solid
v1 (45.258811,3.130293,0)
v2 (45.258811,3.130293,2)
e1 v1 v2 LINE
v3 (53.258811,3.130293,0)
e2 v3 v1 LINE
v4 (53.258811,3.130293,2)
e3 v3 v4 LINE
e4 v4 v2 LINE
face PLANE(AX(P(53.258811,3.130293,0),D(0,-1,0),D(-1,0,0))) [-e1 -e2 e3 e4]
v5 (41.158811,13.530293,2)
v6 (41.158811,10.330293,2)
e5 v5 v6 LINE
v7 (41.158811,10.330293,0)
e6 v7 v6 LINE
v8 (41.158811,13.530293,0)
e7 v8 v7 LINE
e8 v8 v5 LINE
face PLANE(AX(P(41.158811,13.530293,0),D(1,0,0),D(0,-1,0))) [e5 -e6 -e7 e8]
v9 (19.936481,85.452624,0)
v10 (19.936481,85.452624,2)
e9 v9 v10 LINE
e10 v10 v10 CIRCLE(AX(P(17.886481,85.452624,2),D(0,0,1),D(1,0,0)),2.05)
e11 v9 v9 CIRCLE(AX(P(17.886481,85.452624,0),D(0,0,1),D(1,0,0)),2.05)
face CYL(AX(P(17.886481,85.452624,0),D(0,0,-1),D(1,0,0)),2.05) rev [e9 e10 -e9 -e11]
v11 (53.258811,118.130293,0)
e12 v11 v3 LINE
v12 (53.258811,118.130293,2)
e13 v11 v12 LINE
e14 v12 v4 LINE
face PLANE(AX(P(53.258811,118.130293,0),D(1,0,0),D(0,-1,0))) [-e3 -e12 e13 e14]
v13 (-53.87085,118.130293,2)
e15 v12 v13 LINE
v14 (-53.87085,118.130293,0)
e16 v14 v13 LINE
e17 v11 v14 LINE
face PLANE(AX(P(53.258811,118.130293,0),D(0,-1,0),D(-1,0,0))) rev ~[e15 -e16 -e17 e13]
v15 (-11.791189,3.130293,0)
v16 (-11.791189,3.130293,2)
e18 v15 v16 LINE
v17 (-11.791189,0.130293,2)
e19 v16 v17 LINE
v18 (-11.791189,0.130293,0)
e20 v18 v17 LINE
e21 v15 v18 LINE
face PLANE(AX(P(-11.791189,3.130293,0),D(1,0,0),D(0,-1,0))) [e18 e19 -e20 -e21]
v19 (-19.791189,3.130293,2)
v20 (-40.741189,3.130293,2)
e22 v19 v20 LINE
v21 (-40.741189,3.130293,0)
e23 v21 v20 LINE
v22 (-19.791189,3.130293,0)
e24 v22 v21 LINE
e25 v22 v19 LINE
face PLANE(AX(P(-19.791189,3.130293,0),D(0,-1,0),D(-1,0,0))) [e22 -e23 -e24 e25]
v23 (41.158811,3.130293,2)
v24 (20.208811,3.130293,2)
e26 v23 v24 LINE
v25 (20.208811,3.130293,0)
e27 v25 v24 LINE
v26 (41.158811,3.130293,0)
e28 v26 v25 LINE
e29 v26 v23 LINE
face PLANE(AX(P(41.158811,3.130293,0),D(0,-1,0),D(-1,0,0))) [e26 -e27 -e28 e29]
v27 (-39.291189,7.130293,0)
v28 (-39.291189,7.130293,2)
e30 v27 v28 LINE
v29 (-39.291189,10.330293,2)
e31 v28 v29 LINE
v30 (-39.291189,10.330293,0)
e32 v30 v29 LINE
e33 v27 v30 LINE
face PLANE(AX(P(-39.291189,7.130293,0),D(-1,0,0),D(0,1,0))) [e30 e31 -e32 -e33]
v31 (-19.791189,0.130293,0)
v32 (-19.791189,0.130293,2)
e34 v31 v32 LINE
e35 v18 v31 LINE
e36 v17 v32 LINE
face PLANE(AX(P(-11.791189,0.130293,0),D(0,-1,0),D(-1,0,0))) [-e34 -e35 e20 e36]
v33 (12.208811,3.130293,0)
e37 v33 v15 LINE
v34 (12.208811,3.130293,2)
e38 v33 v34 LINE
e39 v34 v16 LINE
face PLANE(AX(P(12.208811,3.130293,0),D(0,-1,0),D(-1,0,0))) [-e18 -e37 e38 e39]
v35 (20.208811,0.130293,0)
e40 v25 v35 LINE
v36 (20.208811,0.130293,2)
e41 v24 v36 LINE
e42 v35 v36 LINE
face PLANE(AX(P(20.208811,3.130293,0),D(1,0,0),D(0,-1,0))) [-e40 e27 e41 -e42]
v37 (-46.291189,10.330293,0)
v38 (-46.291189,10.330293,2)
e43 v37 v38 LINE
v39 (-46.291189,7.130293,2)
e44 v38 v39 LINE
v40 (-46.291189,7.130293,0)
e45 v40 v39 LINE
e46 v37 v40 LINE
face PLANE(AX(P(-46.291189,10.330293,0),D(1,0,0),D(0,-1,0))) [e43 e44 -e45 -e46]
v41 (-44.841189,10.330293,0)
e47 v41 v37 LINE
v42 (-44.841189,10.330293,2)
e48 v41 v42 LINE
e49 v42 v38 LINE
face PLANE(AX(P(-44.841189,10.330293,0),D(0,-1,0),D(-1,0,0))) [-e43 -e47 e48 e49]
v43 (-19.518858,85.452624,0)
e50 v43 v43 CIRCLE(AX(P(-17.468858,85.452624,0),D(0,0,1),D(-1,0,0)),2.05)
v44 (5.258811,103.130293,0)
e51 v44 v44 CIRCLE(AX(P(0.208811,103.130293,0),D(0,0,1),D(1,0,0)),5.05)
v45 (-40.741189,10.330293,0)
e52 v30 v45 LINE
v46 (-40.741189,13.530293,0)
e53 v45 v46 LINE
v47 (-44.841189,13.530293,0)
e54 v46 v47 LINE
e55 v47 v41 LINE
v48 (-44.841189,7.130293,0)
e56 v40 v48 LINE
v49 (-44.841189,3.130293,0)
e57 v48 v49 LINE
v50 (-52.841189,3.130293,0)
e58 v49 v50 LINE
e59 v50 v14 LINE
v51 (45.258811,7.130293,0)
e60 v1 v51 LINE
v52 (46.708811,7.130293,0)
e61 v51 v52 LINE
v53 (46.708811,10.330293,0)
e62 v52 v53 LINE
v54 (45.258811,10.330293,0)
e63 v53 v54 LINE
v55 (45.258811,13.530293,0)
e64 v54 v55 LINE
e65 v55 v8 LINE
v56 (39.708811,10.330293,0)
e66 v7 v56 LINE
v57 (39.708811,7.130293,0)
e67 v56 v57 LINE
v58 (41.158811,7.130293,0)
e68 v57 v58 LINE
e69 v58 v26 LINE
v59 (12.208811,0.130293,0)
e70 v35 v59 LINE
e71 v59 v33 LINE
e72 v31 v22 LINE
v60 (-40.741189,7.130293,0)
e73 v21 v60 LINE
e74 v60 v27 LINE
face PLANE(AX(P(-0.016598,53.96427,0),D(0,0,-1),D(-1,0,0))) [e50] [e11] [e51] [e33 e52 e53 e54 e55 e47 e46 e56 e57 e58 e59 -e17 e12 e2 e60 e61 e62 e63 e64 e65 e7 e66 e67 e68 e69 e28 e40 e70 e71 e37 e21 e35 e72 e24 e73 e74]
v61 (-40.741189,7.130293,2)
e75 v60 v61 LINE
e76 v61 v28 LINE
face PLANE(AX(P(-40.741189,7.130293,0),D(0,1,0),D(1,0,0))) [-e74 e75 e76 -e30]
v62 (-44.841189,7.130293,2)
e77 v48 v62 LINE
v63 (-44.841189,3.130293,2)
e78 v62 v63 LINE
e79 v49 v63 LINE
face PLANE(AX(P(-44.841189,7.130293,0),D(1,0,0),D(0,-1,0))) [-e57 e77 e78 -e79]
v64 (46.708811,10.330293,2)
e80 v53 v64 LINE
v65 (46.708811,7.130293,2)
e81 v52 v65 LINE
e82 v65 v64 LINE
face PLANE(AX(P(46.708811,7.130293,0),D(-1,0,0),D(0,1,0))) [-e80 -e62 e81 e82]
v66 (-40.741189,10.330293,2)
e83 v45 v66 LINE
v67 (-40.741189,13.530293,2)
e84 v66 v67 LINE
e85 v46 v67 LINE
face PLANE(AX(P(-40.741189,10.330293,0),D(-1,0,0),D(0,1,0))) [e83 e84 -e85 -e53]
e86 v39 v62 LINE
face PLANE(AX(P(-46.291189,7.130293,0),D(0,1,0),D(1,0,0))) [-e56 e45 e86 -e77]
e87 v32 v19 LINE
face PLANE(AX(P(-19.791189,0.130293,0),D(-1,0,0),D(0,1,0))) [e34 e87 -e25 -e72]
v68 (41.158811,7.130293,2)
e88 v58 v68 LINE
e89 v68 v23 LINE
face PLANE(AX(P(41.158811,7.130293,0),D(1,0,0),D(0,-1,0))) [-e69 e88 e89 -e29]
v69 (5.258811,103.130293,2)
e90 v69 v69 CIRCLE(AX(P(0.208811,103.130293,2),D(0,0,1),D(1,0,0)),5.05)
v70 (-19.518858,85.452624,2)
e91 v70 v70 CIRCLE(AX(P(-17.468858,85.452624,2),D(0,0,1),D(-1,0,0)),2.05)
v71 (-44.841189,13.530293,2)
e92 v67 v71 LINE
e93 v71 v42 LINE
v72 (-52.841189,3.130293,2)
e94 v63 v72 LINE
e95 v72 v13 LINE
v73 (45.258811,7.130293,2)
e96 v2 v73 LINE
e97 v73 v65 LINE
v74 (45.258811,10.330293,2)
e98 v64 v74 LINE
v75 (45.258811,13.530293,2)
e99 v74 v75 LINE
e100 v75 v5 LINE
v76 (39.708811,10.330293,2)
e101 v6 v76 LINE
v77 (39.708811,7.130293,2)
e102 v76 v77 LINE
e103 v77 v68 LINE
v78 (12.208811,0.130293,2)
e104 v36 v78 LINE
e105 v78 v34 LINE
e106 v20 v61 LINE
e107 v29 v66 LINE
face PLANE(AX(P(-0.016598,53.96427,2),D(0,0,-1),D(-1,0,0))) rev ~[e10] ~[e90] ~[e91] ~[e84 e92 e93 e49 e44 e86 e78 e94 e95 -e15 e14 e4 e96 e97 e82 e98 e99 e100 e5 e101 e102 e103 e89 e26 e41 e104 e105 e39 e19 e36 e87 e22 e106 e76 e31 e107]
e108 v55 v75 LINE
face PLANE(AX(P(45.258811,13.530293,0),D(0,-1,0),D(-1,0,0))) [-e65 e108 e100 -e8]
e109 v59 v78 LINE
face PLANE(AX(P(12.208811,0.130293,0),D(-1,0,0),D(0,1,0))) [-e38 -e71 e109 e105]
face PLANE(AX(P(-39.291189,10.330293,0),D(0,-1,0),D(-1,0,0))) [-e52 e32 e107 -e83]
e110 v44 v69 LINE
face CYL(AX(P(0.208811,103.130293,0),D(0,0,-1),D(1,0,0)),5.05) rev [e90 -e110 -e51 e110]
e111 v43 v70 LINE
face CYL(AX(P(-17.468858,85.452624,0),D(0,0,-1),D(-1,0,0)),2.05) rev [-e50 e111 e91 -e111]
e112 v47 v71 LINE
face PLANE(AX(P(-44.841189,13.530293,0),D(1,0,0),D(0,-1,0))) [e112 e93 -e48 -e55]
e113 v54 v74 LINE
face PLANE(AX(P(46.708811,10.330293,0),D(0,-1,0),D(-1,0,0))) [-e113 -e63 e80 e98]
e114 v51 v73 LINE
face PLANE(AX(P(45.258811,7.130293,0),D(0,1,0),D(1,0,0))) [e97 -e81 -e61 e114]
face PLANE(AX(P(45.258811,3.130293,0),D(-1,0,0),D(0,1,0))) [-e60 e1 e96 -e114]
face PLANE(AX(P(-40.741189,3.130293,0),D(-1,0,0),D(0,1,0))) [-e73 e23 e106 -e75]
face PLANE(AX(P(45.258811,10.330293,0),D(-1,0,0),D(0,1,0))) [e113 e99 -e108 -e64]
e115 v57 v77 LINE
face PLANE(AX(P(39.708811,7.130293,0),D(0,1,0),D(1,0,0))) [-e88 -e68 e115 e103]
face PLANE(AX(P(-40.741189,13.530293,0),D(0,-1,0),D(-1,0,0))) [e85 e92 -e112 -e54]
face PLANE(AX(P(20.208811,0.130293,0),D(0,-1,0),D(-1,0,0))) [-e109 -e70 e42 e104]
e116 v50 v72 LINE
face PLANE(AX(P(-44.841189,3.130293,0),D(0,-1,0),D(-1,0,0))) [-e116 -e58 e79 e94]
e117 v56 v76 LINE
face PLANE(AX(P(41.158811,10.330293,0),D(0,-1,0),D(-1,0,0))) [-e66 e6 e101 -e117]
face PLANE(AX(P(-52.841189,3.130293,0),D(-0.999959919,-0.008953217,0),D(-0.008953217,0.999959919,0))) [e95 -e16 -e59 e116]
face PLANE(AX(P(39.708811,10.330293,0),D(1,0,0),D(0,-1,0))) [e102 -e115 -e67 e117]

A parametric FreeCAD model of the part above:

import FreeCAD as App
import Part
import Sketcher

doc = App.newDocument("Part")
body = doc.addObject("PartDesign::Body", "Body")

# Sketch on XY plane
sketch1 = doc.addObject("Sketcher::SketchObject", "Sketch")
body.addObject(sketch1)
sketch1.AttachmentSupport = (doc.XY_Plane, [""])
sketch1.MapMode = "FlatFace"
sketch1.addGeometry(Part.LineSegment(App.Vector(-40.7, 7.1, 0), App.Vector(-40.7, 3.1, 0)), False)
sketch1.addGeometry(Part.LineSegment(App.Vector(-40.7, 3.1, 0), App.Vector(-19.8, 3.1, 0)), False)
sketch1.addGeometry(Part.LineSegment(App.Vector(-19.8, 3.1, 0), App.Vector(-19.8, 0.1, 0)), False)
sketch1.addGeometry(Part.LineSegment(App.Vector(-19.8, 0.1, 0), App.Vector(-11.8, 0.1, 0)), False)
sketch1.addGeometry(Part.LineSegment(App.Vector(-11.8, 0.1, 0), App.Vector(-11.8, 3.1, 0)), False)
sketch1.addGeometry(Part.LineSegment(App.Vector(-11.8, 3.1, 0), App.Vector(12.2, 3.1, 0)), False)
sketch1.addGeometry(Part.LineSegment(App.Vector(12.2, 3.1, 0), App.Vector(12.2, 0.1, 0)), False)
sketch1.addGeometry(Part.LineSegment(App.Vector(12.2, 0.1, 0), App.Vector(20.2, 0.1, 0)), False)
sketch1.addGeometry(Part.LineSegment(App.Vector(20.2, 0.1, 0), App.Vector(20.2, 3.1, 0)), False)
sketch1.addGeometry(Part.LineSegment(App.Vector(20.2, 3.1, 0), App.Vector(41.2, 3.1, 0)), False)
sketch1.addGeometry(Part.LineSegment(App.Vector(41.2, 3.1, 0), App.Vector(41.2, 7.1, 0)), False)
sketch1.addGeometry(Part.LineSegment(App.Vector(41.2, 7.1, 0), App.Vector(39.7, 7.1, 0)), False)
sketch1.addGeometry(Part.LineSegment(App.Vector(39.7, 7.1, 0), App.Vector(39.7, 10.3, 0)), False)
sketch1.addGeometry(Part.LineSegment(App.Vector(39.7, 10.3, 0), App.Vector(41.2, 10.3, 0)), False)
sketch1.addGeometry(Part.LineSegment(App.Vector(41.2, 10.3, 0), App.Vector(41.2, 13.5, 0)), False)
sketch1.addGeometry(Part.LineSegment(App.Vector(41.2, 13.5, 0), App.Vector(45.3, 13.5, 0)), False)
sketch1.addGeometry(Part.LineSegment(App.Vector(45.3, 13.5, 0), App.Vector(45.3, 10.3, 0)), False)
sketch1.addGeometry(Part.LineSegment(App.Vector(45.3, 10.3, 0), App.Vector(46.7, 10.3, 0)), False)
sketch1.addGeometry(Part.LineSegment(App.Vector(46.7, 10.3, 0), App.Vector(46.7, 7.1, 0)), False)
sketch1.addGeometry(Part.LineSegment(App.Vector(46.7, 7.1, 0), App.Vector(45.3, 7.1, 0)), False)
sketch1.addGeometry(Part.LineSegment(App.Vector(45.3, 7.1, 0), App.Vector(45.3, 3.1, 0)), False)
sketch1.addGeometry(Part.LineSegment(App.Vector(45.3, 3.1, 0), App.Vector(53.3, 3.1, 0)), False)
sketch1.addGeometry(Part.LineSegment(App.Vector(53.3, 3.1, 0), App.Vector(53.3, 118.1, 0)), False)
sketch1.addGeometry(Part.LineSegment(App.Vector(53.3, 118.1, 0), App.Vector(-53.9, 118.1, 0)), False)
sketch1.addGeometry(Part.LineSegment(App.Vector(-53.9, 118.1, 0), App.Vector(-52.8, 3.1, 0)), False)
sketch1.addGeometry(Part.LineSegment(App.Vector(-52.8, 3.1, 0), App.Vector(-44.8, 3.1, 0)), False)
sketch1.addGeometry(Part.LineSegment(App.Vector(-44.8, 3.1, 0), App.Vector(-44.8, 7.1, 0)), False)
sketch1.addGeometry(Part.LineSegment(App.Vector(-44.8, 7.1, 0), App.Vector(-46.3, 7.1, 0)), False)
sketch1.addGeometry(Part.LineSegment(App.Vector(-46.3, 7.1, 0), App.Vector(-46.3, 10.3, 0)), False)
sketch1.addGeometry(Part.LineSegment(App.Vector(-46.3, 10.3, 0), App.Vector(-44.8, 10.3, 0)), False)
sketch1.addGeometry(Part.LineSegment(App.Vector(-44.8, 10.3, 0), App.Vector(-44.8, 13.5, 0)), False)
sketch1.addGeometry(Part.LineSegment(App.Vector(-44.8, 13.5, 0), App.Vector(-40.7, 13.5, 0)), False)
sketch1.addGeometry(Part.LineSegment(App.Vector(-40.7, 13.5, 0), App.Vector(-40.7, 10.3, 0)), False)
sketch1.addGeometry(Part.LineSegment(App.Vector(-40.7, 10.3, 0), App.Vector(-39.3, 10.3, 0)), False)
sketch1.addGeometry(Part.LineSegment(App.Vector(-39.3, 10.3, 0), App.Vector(-39.3, 7.1, 0)), False)
sketch1.addGeometry(Part.LineSegment(App.Vector(-39.3, 7.1, 0), App.Vector(-40.7, 7.1, 0)), False)
sketch1.addGeometry(Part.Circle(App.Vector(17.9, 85.5, 0), App.Vector(0, 0, 1), 2), False)
sketch1.addGeometry(Part.Circle(App.Vector(-17.5, 85.5, 0), App.Vector(0, 0, 1), 2), False)
sketch1.addGeometry(Part.Circle(App.Vector(0.2, 103.1, 0), App.Vector(0, 0, 1), 5), False)
sketch1.addConstraint(Sketcher.Constraint("Coincident", 0, 2, 1, 1))
sketch1.addConstraint(Sketcher.Constraint("Coincident", 1, 2, 2, 1))
sketch1.addConstraint(Sketcher.Constraint("Coincident", 2, 2, 3, 1))
sketch1.addConstraint(Sketcher.Constraint("Coincident", 3, 2, 4, 1))
sketch1.addConstraint(Sketcher.Constraint("Coincident", 4, 2, 5, 1))
sketch1.addConstraint(Sketcher.Constraint("Coincident", 5, 2, 6, 1))
sketch1.addConstraint(Sketcher.Constraint("Coincident", 6, 2, 7, 1))
sketch1.addConstraint(Sketcher.Constraint("Coincident", 7, 2, 8, 1))
sketch1.addConstraint(Sketcher.Constraint("Coincident", 8, 2, 9, 1))
sketch1.addConstraint(Sketcher.Constraint("Coincident", 9, 2, 10, 1))
sketch1.addConstraint(Sketcher.Constraint("Coincident", 10, 2, 11, 1))
sketch1.addConstraint(Sketcher.Constraint("Coincident", 11, 2, 12, 1))
sketch1.addConstraint(Sketcher.Constraint("Coincident", 12, 2, 13, 1))
sketch1.addConstraint(Sketcher.Constraint("Coincident", 13, 2, 14, 1))
sketch1.addConstraint(Sketcher.Constraint("Coincident", 14, 2, 15, 1))
sketch1.addConstraint(Sketcher.Constraint("Coincident", 15, 2, 16, 1))
sketch1.addConstraint(Sketcher.Constraint("Coincident", 16, 2, 17, 1))
sketch1.addConstraint(Sketcher.Constraint("Coincident", 17, 2, 18, 1))
sketch1.addConstraint(Sketcher.Constraint("Coincident", 18, 2, 19, 1))
sketch1.addConstraint(Sketcher.Constraint("Coincident", 19, 2, 20, 1))
sketch1.addConstraint(Sketcher.Constraint("Coincident", 20, 2, 21, 1))
sketch1.addConstraint(Sketcher.Constraint("Coincident", 21, 2, 22, 1))
sketch1.addConstraint(Sketcher.Constraint("Coincident", 22, 2, 23, 1))
sketch1.addConstraint(Sketcher.Constraint("Coincident", 23, 2, 24, 1))
sketch1.addConstraint(Sketcher.Constraint("Coincident", 24, 2, 25, 1))
sketch1.addConstraint(Sketcher.Constraint("Coincident", 25, 2, 26, 1))
sketch1.addConstraint(Sketcher.Constraint("Coincident", 26, 2, 27, 1))
sketch1.addConstraint(Sketcher.Constraint("Coincident", 27, 2, 28, 1))
sketch1.addConstraint(Sketcher.Constraint("Coincident", 28, 2, 29, 1))
sketch1.addConstraint(Sketcher.Constraint("Coincident", 29, 2, 30, 1))
sketch1.addConstraint(Sketcher.Constraint("Coincident", 30, 2, 31, 1))
sketch1.addConstraint(Sketcher.Constraint("Coincident", 31, 2, 32, 1))
sketch1.addConstraint(Sketcher.Constraint("Coincident", 32, 2, 33, 1))
sketch1.addConstraint(Sketcher.Constraint("Coincident", 33, 2, 34, 1))
sketch1.addConstraint(Sketcher.Constraint("Coincident", 34, 2, 35, 1))
sketch1.addConstraint(Sketcher.Constraint("Coincident", 35, 2, 0, 1))
sketch1.addConstraint(Sketcher.Constraint("Vertical", 0))
sketch1.addConstraint(Sketcher.Constraint("Horizontal", 1))
sketch1.addConstraint(Sketcher.Constraint("Vertical", 2))
sketch1.addConstraint(Sketcher.Constraint("Horizontal", 3))
sketch1.addConstraint(Sketcher.Constraint("Vertical", 4))
sketch1.addConstraint(Sketcher.Constraint("Horizontal", 5))
sketch1.addConstraint(Sketcher.Constraint("Vertical", 6))
sketch1.addConstraint(Sketcher.Constraint("Horizontal", 7))
sketch1.addConstraint(Sketcher.Constraint("Vertical", 8))
sketch1.addConstraint(Sketcher.Constraint("Horizontal", 9))
sketch1.addConstraint(Sketcher.Constraint("Vertical", 10))
sketch1.addConstraint(Sketcher.Constraint("Horizontal", 11))
sketch1.addConstraint(Sketcher.Constraint("Vertical", 12))
sketch1.addConstraint(Sketcher.Constraint("Horizontal", 13))
sketch1.addConstraint(Sketcher.Constraint("Vertical", 14))
sketch1.addConstraint(Sketcher.Constraint("Horizontal", 15))
sketch1.addConstraint(Sketcher.Constraint("Vertical", 16))
sketch1.addConstraint(Sketcher.Constraint("Horizontal", 17))
sketch1.addConstraint(Sketcher.Constraint("Vertical", 18))
sketch1.addConstraint(Sketcher.Constraint("Horizontal", 19))
sketch1.addConstraint(Sketcher.Constraint("Vertical", 20))
sketch1.addConstraint(Sketcher.Constraint("Horizontal", 21))
sketch1.addConstraint(Sketcher.Constraint("Vertical", 22))
sketch1.addConstraint(Sketcher.Constraint("Horizontal", 23))
sketch1.addConstraint(Sketcher.Constraint("Horizontal", 25))
sketch1.addConstraint(Sketcher.Constraint("Vertical", 26))
sketch1.addConstraint(Sketcher.Constraint("Horizontal", 27))
sketch1.addConstraint(Sketcher.Constraint("Vertical", 28))
sketch1.addConstraint(Sketcher.Constraint("Horizontal", 29))
sketch1.addConstraint(Sketcher.Constraint("Vertical", 30))
sketch1.addConstraint(Sketcher.Constraint("Horizontal", 31))
sketch1.addConstraint(Sketcher.Constraint("Vertical", 32))
sketch1.addConstraint(Sketcher.Constraint("Horizontal", 33))
sketch1.addConstraint(Sketcher.Constraint("Vertical", 34))
sketch1.addConstraint(Sketcher.Constraint("Horizontal", 35))
sketch1.addConstraint(Sketcher.Constraint("Equal", 36, 37))
sketch1.addConstraint(Sketcher.Constraint("Horizontal", 36, 3, 37, 3))
sketch1.addConstraint(Sketcher.Constraint("Horizontal", 1, 2, 4, 2))
sketch1.addConstraint(Sketcher.Constraint("Horizontal", 3, 2, 6, 2))
sketch1.addConstraint(Sketcher.Constraint("Horizontal", 5, 2, 8, 2))
sketch1.addConstraint(Sketcher.Constraint("Horizontal", 13, 2, 16, 2))
sketch1.addConstraint(Sketcher.Constraint("Horizontal", 11, 2, 18, 2))
sketch1.addConstraint(Sketcher.Constraint("Horizontal", 9, 2, 20, 2))
sketch1.addConstraint(Sketcher.Constraint("Horizontal", 21, 2, 24, 2))
sketch1.addConstraint(Sketcher.Constraint("Horizontal", 19, 2, 26, 2))
sketch1.addConstraint(Sketcher.Constraint("Horizontal", 17, 2, 28, 2))
sketch1.addConstraint(Sketcher.Constraint("Horizontal", 15, 2, 30, 2))
sketch1.addConstraint(Sketcher.Constraint("Horizontal", 29, 2, 32, 2))
sketch1.addConstraint(Sketcher.Constraint("Horizontal", 27, 2, 34, 2))
sketch1.addConstraint(Sketcher.Constraint("Vertical", 10, 2, 13, 2))
sketch1.addConstraint(Sketcher.Constraint("Vertical", 16, 2, 19, 2))
sketch1.addConstraint(Sketcher.Constraint("Vertical", 26, 2, 29, 2))
sketch1.addConstraint(Sketcher.Constraint("Vertical", 0, 2, 31, 2))
sketch1.addConstraint(Sketcher.Constraint("Equal", 3, 7))
sketch1.addConstraint(Sketcher.Constraint("Equal", 1, 9))
sketch1.addConstraint(Sketcher.Constraint("Equal", 13, 17))
sketch1.addConstraint(Sketcher.Constraint("Equal", 7, 21))
sketch1.addConstraint(Sketcher.Constraint("Equal", 21, 25))
sketch1.addConstraint(Sketcher.Constraint("Equal", 19, 27))
sketch1.addConstraint(Sketcher.Constraint("Equal", 15, 31))
sketch1.addConstraint(Sketcher.Constraint("Equal", 29, 33))
sketch1.addConstraint(Sketcher.Constraint("Equal", 12, 14))
sketch1.addConstraint(Sketcher.Constraint("Diameter", 36, 4.1))
sketch1.addConstraint(Sketcher.Constraint("Diameter", 38, 10.1))
sketch1.addConstraint(Sketcher.Constraint("DistanceX", 3, 1, 3, 2, 8.0))
sketch1.addConstraint(Sketcher.Constraint("DistanceX", 5, 1, 5, 2, 24.0))
sketch1.addConstraint(Sketcher.Constraint("DistanceY", 0, 2, 0, 1, 4.0))
sketch1.addConstraint(Sketcher.Constraint("DistanceY", 2, 2, 2, 1, 3.0))
sketch1.addConstraint(Sketcher.Constraint("DistanceY", 22, 1, 22, 2, 115.0))
sketch1.addConstraint(Sketcher.Constraint("DistanceX", 15, 1, 15, 2, 4.1))
sketch1.addConstraint(Sketcher.Constraint("DistanceY", 12, 1, 12, 2, 3.2))
sketch1.addConstraint(Sketcher.Constraint("DistanceY", 0, 2, 38, 3, 100.0))
sketch1.addConstraint(Sketcher.Constraint("DistanceX", 1, 2, 38, 3, 20.0))
sketch1.addConstraint(Sketcher.Constraint("DistanceX", 1, 1, 1, 2, 20.95))
sketch1.addConstraint(Sketcher.Constraint("DistanceX", 11, 2, 11, 1, 1.45))
sketch1.addConstraint(Sketcher.Constraint("DistanceX", 23, 2, 23, 1, 107.129661))
sketch1.addConstraint(Sketcher.Constraint("DistanceX", -1, 1, 36, 3, 17.886481))
sketch1.addConstraint(Sketcher.Constraint("DistanceX", 37, 3, -1, 1, 17.468858))
sketch1.addConstraint(Sketcher.Constraint("DistanceX", -1, 1, 38, 3, 0.208811))
sketch1.addConstraint(Sketcher.Constraint("DistanceY", 36, 3, 38, 3, 17.67767))
sketch1.addConstraint(Sketcher.Constraint("DistanceY", -1, 1, 36, 3, 85.452624))
pad1 = doc.addObject("PartDesign::Pad", "Pad")
body.addObject(pad1)
pad1.Profile = sketch1
pad1.Length = 2

doc.recompute()
